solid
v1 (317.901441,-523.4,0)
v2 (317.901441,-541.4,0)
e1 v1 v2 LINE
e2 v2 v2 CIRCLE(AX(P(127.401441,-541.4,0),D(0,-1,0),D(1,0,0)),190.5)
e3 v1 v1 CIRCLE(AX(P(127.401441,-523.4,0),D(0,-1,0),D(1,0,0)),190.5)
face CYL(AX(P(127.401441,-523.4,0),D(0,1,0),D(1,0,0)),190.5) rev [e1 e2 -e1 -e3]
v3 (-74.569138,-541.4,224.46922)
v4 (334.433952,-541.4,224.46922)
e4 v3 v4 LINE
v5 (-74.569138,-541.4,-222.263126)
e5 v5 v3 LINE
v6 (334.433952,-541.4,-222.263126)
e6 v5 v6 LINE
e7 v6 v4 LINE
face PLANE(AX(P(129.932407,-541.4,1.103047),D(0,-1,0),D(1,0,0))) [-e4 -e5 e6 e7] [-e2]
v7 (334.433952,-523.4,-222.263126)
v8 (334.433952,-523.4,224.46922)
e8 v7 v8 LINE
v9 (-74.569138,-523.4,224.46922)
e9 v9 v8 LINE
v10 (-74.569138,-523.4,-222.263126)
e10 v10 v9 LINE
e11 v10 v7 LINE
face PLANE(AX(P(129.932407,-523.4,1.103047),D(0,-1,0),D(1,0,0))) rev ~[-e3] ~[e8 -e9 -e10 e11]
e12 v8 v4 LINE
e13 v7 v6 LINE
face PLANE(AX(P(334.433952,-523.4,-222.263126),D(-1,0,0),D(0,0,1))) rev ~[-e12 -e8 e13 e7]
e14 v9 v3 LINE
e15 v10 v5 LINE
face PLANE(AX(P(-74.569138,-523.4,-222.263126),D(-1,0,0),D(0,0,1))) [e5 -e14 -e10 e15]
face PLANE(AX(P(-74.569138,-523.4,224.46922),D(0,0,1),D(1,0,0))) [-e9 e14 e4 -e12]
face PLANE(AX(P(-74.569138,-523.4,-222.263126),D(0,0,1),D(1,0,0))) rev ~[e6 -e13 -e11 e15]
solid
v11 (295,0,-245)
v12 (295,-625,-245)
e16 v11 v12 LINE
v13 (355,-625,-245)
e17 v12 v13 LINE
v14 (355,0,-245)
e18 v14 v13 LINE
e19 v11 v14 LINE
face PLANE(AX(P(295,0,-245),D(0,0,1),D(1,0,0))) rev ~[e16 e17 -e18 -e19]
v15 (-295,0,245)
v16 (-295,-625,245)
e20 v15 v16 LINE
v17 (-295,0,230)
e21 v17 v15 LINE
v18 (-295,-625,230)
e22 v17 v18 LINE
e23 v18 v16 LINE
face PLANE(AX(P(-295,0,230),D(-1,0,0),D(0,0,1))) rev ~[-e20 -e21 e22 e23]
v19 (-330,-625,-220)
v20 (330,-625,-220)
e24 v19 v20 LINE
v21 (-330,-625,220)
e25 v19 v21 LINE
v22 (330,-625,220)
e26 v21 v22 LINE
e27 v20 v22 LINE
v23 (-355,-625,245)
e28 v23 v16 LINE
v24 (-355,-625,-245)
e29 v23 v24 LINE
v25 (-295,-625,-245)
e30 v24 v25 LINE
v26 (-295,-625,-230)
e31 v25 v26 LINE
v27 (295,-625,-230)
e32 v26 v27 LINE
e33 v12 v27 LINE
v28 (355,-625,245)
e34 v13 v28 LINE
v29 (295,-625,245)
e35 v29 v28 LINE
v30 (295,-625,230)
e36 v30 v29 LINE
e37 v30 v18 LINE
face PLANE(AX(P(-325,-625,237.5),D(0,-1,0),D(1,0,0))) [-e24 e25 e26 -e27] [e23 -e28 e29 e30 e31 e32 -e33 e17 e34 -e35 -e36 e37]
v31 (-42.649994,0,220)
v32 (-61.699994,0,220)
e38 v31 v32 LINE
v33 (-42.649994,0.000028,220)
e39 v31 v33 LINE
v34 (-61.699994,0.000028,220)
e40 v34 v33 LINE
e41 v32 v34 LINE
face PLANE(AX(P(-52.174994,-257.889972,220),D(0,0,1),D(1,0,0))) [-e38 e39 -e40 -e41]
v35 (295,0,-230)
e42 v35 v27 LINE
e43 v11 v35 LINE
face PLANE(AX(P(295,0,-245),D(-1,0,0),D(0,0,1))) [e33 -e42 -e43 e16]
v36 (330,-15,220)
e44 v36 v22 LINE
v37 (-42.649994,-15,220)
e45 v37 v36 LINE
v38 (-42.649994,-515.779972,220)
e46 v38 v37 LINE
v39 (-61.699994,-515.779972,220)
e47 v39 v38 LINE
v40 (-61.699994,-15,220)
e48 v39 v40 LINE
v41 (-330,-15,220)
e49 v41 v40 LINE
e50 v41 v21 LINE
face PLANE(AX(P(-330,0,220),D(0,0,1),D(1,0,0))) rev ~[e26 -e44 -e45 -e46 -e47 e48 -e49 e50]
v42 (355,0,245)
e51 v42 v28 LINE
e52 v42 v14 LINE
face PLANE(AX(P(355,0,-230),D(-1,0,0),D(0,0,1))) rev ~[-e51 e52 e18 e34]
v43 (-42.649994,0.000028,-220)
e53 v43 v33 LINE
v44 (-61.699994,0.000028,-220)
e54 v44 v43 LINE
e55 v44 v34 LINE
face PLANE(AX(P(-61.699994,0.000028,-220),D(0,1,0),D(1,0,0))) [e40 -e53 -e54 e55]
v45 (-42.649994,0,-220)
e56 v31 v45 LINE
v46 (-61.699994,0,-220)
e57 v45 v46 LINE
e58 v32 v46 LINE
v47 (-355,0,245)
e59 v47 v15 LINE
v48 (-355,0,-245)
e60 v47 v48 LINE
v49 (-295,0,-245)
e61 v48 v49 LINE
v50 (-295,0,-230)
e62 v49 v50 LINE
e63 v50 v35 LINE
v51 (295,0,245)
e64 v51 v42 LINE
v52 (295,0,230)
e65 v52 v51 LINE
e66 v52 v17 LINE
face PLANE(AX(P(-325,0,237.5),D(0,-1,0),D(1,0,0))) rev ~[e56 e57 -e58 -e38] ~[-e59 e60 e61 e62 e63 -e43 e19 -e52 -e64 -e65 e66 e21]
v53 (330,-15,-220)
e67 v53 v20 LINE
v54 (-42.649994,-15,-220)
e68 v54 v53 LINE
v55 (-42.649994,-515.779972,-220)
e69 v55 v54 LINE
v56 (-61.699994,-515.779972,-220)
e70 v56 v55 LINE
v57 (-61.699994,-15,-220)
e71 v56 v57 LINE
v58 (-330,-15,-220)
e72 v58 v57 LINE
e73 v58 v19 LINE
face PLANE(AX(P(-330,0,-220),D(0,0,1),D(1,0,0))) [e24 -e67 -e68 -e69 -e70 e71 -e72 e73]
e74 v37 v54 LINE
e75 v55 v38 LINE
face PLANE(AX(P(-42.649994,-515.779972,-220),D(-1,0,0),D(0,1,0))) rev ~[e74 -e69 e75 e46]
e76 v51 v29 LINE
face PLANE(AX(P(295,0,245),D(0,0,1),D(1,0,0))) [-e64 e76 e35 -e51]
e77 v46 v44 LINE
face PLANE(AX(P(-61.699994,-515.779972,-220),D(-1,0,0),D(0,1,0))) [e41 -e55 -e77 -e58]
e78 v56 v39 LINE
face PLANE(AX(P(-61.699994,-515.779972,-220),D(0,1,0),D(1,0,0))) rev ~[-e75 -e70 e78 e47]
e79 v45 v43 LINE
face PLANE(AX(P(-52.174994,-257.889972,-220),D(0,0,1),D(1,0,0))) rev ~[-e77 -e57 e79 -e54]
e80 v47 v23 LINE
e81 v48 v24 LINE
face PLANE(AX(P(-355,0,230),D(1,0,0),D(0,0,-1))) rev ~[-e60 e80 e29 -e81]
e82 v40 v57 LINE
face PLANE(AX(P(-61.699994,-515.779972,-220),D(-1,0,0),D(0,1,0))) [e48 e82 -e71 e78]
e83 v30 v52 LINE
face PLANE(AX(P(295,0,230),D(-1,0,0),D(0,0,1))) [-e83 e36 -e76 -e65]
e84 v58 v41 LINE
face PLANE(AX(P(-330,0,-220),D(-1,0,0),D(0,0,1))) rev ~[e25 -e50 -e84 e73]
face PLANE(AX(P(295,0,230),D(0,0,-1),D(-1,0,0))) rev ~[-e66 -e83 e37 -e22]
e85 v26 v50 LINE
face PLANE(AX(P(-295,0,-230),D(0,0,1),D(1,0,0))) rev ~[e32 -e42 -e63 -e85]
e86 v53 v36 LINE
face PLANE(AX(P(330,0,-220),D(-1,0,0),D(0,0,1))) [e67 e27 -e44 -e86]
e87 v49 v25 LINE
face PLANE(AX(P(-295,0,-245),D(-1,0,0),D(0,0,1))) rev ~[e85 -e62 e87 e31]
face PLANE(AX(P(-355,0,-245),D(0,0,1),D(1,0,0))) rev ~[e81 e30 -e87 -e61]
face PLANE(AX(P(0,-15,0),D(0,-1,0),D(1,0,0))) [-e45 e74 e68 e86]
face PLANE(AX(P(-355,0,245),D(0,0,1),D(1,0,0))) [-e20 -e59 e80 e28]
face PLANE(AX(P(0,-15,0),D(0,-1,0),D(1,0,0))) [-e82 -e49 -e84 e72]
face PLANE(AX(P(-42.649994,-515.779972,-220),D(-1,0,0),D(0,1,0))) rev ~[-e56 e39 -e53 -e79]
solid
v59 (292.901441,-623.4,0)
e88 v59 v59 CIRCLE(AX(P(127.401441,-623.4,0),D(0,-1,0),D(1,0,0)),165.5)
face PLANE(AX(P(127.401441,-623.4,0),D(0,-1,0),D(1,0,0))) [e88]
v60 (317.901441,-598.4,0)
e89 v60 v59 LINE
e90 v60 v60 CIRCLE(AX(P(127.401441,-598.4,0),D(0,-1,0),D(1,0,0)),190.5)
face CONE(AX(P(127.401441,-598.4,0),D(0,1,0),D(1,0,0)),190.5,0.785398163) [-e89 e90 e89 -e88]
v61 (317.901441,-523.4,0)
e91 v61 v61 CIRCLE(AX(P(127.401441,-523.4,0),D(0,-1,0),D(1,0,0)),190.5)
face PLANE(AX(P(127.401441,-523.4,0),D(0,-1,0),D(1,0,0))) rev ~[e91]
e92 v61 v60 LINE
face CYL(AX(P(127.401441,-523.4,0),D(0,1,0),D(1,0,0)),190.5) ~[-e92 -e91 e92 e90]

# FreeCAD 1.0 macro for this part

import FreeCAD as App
import Part
import Sketcher
from FreeCAD import Vector
Q = App.Units.Quantity


def edges_at(feature, points):
    """Names of the edges that pass closest to the given points."""
    edges = feature.Shape.Edges
    near = lambda p: min(range(len(edges)), key=lambda i: edges[i].distToShape(Part.Vertex(*p))[0])
    return sorted({f"Edge{near(p) + 1}" for p in points})

doc = App.newDocument("Part")
body = doc.addObject("PartDesign::Body", "Body")

sketch1 = body.newObject("Sketcher::SketchObject", "Sketch")
sketch1.AttachmentSupport = (doc.getObject("XZ_Plane"), [""])
sketch1.MapMode = "FlatFace"
sketch1.addGeometry([
    Part.LineSegment(Vector(-355, 245, 0), Vector(-355, -245, 0)),
    Part.LineSegment(Vector(-355, -245, 0), Vector(-295, -245, 0)),
    Part.LineSegment(Vector(-295, -245, 0), Vector(-295, -230, 0)),
    Part.LineSegment(Vector(-295, -230, 0), Vector(295, -230, 0)),
    Part.LineSegment(Vector(295, -230, 0), Vector(295, -245, 0)),
    Part.LineSegment(Vector(295, -245, 0), Vector(355, -245, 0)),
    Part.LineSegment(Vector(355, -245, 0), Vector(355, 245, 0)),
    Part.LineSegment(Vector(355, 245, 0), Vector(295, 245, 0)),
    Part.LineSegment(Vector(295, 245, 0), Vector(295, 230, 0)),
    Part.LineSegment(Vector(295, 230, 0), Vector(-295, 230, 0)),
    Part.LineSegment(Vector(-295, 230, 0), Vector(-295, 245, 0)),
    Part.LineSegment(Vector(-295, 245, 0), Vector(-355, 245, 0)),
    Part.LineSegment(Vector(330, -220, 0), Vector(-330, -220, 0)),
    Part.LineSegment(Vector(-330, -220, 0), Vector(-330, 220, 0)),
    Part.LineSegment(Vector(-330, 220, 0), Vector(330, 220, 0)),
    Part.LineSegment(Vector(330, 220, 0), Vector(330, -220, 0)),
], False)
sketch1.addConstraint([
    Sketcher.Constraint("Coincident", 0, 2, 1, 1),
    Sketcher.Constraint("Coincident", 1, 2, 2, 1),
    Sketcher.Constraint("Coincident", 2, 2, 3, 1),
    Sketcher.Constraint("Coincident", 3, 2, 4, 1),
    Sketcher.Constraint("Coincident", 4, 2, 5, 1),
    Sketcher.Constraint("Coincident", 5, 2, 6, 1),
    Sketcher.Constraint("Coincident", 6, 2, 7, 1),
    Sketcher.Constraint("Coincident", 7, 2, 8, 1),
    Sketcher.Constraint("Coincident", 8, 2, 9, 1),
    Sketcher.Constraint("Coincident", 9, 2, 10, 1),
    Sketcher.Constraint("Coincident", 10, 2, 11, 1),
    Sketcher.Constraint("Coincident", 11, 2, 0, 1),
    Sketcher.Constraint("Coincident", 12, 2, 13, 1),
    Sketcher.Constraint("Coincident", 13, 2, 14, 1),
    Sketcher.Constraint("Coincident", 14, 2, 15, 1),
    Sketcher.Constraint("Coincident", 15, 2, 12, 1),
    Sketcher.Constraint("Vertical", 0),
    Sketcher.Constraint("Horizontal", 1),
    Sketcher.Constraint("Vertical", 2),
    Sketcher.Constraint("Horizontal", 3),
    Sketcher.Constraint("Vertical", 4),
    Sketcher.Constraint("Horizontal", 5),
    Sketcher.Constraint("Vertical", 6),
    Sketcher.Constraint("Horizontal", 7),
    Sketcher.Constraint("Vertical", 8),
    Sketcher.Constraint("Horizontal", 9),
    Sketcher.Constraint("Vertical", 10),
    Sketcher.Constraint("Horizontal", 11),
    Sketcher.Constraint("Horizontal", 12),
    Sketcher.Constraint("Vertical", 13),
    Sketcher.Constraint("Horizontal", 14),
    Sketcher.Constraint("Vertical", 15),
    Sketcher.Constraint("Symmetric", 0, 2, 6, 2, -1, 1),
    Sketcher.Constraint("Symmetric", 2, 2, 8, 2, -1, 1),
    Sketcher.Constraint("Symmetric", 4, 2, 10, 2, -1, 1),
    Sketcher.Constraint("Symmetric", 12, 2, 14, 2, -1, 1),
    Sketcher.Constraint("Symmetric", 1, 2, 4, 2, -2),
    Sketcher.Constraint("DistanceX", 1, 1, 1, 2, Q("60 mm")),
    Sketcher.Constraint("DistanceX", 3, 1, 3, 2, Q("590 mm")),
    Sketcher.Constraint("DistanceX", 12, 2, 12, 1, Q("660 mm")),
    Sketcher.Constraint("DistanceY", 0, 2, 0, 1, Q("490 mm")),
    Sketcher.Constraint("DistanceY", 2, 1, 2, 2, Q("15 mm")),
    Sketcher.Constraint("DistanceY", 13, 1, 13, 2, Q("440 mm")),
])
pad1 = body.newObject("PartDesign::Pad", "Pad")
pad1.Profile = sketch1
pad1.Length = 625

sketch2 = body.newObject("Sketcher::SketchObject", "Sketch001")
sketch2.AttachmentSupport = (doc.getObject("XZ_Plane"), [""])
sketch2.MapMode = "FlatFace"
sketch2.addGeometry([
    Part.LineSegment(Vector(-355, 230, 0), Vector(-355, -230, 0)),
    Part.LineSegment(Vector(-355, -230, 0), Vector(355, -230, 0)),
    Part.LineSegment(Vector(355, -230, 0), Vector(355, 230, 0)),
    Part.LineSegment(Vector(355, 230, 0), Vector(-355, 230, 0)),
], False)
sketch2.addConstraint([
    Sketcher.Constraint("Coincident", 0, 2, 1, 1),
    Sketcher.Constraint("Coincident", 1, 2, 2, 1),
    Sketcher.Constraint("Coincident", 2, 2, 3, 1),
    Sketcher.Constraint("Coincident", 3, 2, 0, 1),
    Sketcher.Constraint("Vertical", 0),
    Sketcher.Constraint("Horizontal", 1),
    Sketcher.Constraint("Vertical", 2),
    Sketcher.Constraint("Horizontal", 3),
    Sketcher.Constraint("Symmetric", 0, 2, 2, 2, -1, 1),
    Sketcher.Constraint("DistanceX", 1, 1, 1, 2, Q("710 mm")),
    Sketcher.Constraint("DistanceY", 0, 2, 0, 1, Q("460 mm")),
])
pad2 = body.newObject("PartDesign::Pad", "Pad001")
pad2.Profile = sketch2
pad2.Length = 15

sketch3 = body.newObject("Sketcher::SketchObject", "Sketch002")
sketch3.AttachmentSupport = (doc.getObject("XY_Plane"), [""])
sketch3.MapMode = "FlatFace"
sketch3.AttachmentOffset = App.Placement(Vector(0, 0, -220), App.Rotation())
sketch3.addGeometry([
    Part.LineSegment(Vector(-62, 0, 0), Vector(-62, -516, 0)),
    Part.LineSegment(Vector(-62, -516, 0), Vector(-43, -516, 0)),
    Part.LineSegment(Vector(-43, -516, 0), Vector(-43, 0, 0)),
    Part.LineSegment(Vector(-43, 0, 0), Vector(-62, 0, 0)),
], False)
sketch3.addConstraint([
    Sketcher.Constraint("Coincident", 0, 2, 1, 1),
    Sketcher.Constraint("Coincident", 1, 2, 2, 1),
    Sketcher.Constraint("Coincident", 2, 2, 3, 1),
    Sketcher.Constraint("Coincident", 3, 2, 0, 1),
    Sketcher.Constraint("Vertical", 0),
    Sketcher.Constraint("Horizontal", 1),
    Sketcher.Constraint("Vertical", 2),
    Sketcher.Constraint("Horizontal", 3),
    Sketcher.Constraint("DistanceX", 1, 1, 1, 2, Q("19.05 mm")),
    Sketcher.Constraint("DistanceY", 0, 2, 0, 1, Q("515.78 mm")),
    Sketcher.Constraint("DistanceY", 0, 2, -1, 1, Q("515.779972 mm")),
    Sketcher.Constraint("DistanceX", 0, 2, -1, 1, Q("61.699994 mm")),
])
pad3 = body.newObject("PartDesign::Pad", "Pad002")
pad3.Profile = sketch3
pad3.Length = 440
body2 = doc.addObject("PartDesign::Body", "Body001")

sketch4 = body2.newObject("Sketcher::SketchObject", "Sketch003")
sketch4.AttachmentSupport = (doc.getObject("XZ_Plane001"), [""])
sketch4.MapMode = "FlatFace"
sketch4.AttachmentOffset = App.Placement(Vector(0, 0, 523.4), App.Rotation())
sketch4.addGeometry(Part.Circle(Vector(127, 0, 0), Vector(0, 0, 1), 190), False)
sketch4.addConstraint([
    Sketcher.Constraint("PointOnObject", 0, 3, -1),
    Sketcher.Constraint("Diameter", 0, Q("381 mm")),
    Sketcher.Constraint("DistanceX", -1, 1, 0, 3, Q("127.401441 mm")),
])
pad4 = body2.newObject("PartDesign::Pad", "Pad003")
pad4.Profile = sketch4
pad4.Length = 100
doc.recompute()

chamfer = body2.newObject("PartDesign::Chamfer", "Chamfer")
chamfer.Base = (pad4, edges_at(pad4, [(-63.099, -623.4, 0)]))
chamfer.Size = 25
body3 = doc.addObject("PartDesign::Body", "Body002")

sketch5 = body3.newObject("Sketcher::SketchObject", "Sketch004")
sketch5.AttachmentSupport = (doc.getObject("XZ_Plane002"), [""])
sketch5.MapMode = "FlatFace"
sketch5.AttachmentOffset = App.Placement(Vector(0, 0, 523.4), App.Rotation())
sketch5.addGeometry([
    Part.LineSegment(Vector(-75, 224, 0), Vector(-75, -222, 0)),
    Part.LineSegment(Vector(-75, -222, 0), Vector(334, -222, 0)),
    Part.LineSegment(Vector(334, -222, 0), Vector(334, 224, 0)),
    Part.LineSegment(Vector(334, 224, 0), Vector(-75, 224, 0)),
    Part.Circle(Vector(127, 0, 0), Vector(0, 0, 1), 190),
], False)
sketch5.addConstraint([
    Sketcher.Constraint("Coincident", 0, 2, 1, 1),
    Sketcher.Constraint("Coincident", 1, 2, 2, 1),
    Sketcher.Constraint("Coincident", 2, 2, 3, 1),
    Sketcher.Constraint("Coincident", 3, 2, 0, 1),
    Sketcher.Constraint("Vertical", 0),
    Sketcher.Constraint("Horizontal", 1),
    Sketcher.Constraint("Vertical", 2),
    Sketcher.Constraint("Horizontal", 3),
    Sketcher.Constraint("PointOnObject", 4, 3, -1),
    Sketcher.Constraint("Diameter", 4, Q("381 mm")),
    Sketcher.Constraint("DistanceX", 1, 1, 1, 2, Q("409.003091 mm")),
    Sketcher.Constraint("DistanceY", 0, 2, 0, 1, Q("446.732346 mm")),
    Sketcher.Constraint("DistanceX", -1, 1, 4, 3, Q("127.401441 mm")),
    Sketcher.Constraint("DistanceX", 0, 2, -1, 1, Q("74.569138 mm")),
    Sketcher.Constraint("DistanceY", -1, 1, 2, 2, Q("224.46922 mm")),
])
pad5 = body3.newObject("PartDesign::Pad", "Pad004")
pad5.Profile = sketch5
pad5.Length = 18

doc.recompute()
